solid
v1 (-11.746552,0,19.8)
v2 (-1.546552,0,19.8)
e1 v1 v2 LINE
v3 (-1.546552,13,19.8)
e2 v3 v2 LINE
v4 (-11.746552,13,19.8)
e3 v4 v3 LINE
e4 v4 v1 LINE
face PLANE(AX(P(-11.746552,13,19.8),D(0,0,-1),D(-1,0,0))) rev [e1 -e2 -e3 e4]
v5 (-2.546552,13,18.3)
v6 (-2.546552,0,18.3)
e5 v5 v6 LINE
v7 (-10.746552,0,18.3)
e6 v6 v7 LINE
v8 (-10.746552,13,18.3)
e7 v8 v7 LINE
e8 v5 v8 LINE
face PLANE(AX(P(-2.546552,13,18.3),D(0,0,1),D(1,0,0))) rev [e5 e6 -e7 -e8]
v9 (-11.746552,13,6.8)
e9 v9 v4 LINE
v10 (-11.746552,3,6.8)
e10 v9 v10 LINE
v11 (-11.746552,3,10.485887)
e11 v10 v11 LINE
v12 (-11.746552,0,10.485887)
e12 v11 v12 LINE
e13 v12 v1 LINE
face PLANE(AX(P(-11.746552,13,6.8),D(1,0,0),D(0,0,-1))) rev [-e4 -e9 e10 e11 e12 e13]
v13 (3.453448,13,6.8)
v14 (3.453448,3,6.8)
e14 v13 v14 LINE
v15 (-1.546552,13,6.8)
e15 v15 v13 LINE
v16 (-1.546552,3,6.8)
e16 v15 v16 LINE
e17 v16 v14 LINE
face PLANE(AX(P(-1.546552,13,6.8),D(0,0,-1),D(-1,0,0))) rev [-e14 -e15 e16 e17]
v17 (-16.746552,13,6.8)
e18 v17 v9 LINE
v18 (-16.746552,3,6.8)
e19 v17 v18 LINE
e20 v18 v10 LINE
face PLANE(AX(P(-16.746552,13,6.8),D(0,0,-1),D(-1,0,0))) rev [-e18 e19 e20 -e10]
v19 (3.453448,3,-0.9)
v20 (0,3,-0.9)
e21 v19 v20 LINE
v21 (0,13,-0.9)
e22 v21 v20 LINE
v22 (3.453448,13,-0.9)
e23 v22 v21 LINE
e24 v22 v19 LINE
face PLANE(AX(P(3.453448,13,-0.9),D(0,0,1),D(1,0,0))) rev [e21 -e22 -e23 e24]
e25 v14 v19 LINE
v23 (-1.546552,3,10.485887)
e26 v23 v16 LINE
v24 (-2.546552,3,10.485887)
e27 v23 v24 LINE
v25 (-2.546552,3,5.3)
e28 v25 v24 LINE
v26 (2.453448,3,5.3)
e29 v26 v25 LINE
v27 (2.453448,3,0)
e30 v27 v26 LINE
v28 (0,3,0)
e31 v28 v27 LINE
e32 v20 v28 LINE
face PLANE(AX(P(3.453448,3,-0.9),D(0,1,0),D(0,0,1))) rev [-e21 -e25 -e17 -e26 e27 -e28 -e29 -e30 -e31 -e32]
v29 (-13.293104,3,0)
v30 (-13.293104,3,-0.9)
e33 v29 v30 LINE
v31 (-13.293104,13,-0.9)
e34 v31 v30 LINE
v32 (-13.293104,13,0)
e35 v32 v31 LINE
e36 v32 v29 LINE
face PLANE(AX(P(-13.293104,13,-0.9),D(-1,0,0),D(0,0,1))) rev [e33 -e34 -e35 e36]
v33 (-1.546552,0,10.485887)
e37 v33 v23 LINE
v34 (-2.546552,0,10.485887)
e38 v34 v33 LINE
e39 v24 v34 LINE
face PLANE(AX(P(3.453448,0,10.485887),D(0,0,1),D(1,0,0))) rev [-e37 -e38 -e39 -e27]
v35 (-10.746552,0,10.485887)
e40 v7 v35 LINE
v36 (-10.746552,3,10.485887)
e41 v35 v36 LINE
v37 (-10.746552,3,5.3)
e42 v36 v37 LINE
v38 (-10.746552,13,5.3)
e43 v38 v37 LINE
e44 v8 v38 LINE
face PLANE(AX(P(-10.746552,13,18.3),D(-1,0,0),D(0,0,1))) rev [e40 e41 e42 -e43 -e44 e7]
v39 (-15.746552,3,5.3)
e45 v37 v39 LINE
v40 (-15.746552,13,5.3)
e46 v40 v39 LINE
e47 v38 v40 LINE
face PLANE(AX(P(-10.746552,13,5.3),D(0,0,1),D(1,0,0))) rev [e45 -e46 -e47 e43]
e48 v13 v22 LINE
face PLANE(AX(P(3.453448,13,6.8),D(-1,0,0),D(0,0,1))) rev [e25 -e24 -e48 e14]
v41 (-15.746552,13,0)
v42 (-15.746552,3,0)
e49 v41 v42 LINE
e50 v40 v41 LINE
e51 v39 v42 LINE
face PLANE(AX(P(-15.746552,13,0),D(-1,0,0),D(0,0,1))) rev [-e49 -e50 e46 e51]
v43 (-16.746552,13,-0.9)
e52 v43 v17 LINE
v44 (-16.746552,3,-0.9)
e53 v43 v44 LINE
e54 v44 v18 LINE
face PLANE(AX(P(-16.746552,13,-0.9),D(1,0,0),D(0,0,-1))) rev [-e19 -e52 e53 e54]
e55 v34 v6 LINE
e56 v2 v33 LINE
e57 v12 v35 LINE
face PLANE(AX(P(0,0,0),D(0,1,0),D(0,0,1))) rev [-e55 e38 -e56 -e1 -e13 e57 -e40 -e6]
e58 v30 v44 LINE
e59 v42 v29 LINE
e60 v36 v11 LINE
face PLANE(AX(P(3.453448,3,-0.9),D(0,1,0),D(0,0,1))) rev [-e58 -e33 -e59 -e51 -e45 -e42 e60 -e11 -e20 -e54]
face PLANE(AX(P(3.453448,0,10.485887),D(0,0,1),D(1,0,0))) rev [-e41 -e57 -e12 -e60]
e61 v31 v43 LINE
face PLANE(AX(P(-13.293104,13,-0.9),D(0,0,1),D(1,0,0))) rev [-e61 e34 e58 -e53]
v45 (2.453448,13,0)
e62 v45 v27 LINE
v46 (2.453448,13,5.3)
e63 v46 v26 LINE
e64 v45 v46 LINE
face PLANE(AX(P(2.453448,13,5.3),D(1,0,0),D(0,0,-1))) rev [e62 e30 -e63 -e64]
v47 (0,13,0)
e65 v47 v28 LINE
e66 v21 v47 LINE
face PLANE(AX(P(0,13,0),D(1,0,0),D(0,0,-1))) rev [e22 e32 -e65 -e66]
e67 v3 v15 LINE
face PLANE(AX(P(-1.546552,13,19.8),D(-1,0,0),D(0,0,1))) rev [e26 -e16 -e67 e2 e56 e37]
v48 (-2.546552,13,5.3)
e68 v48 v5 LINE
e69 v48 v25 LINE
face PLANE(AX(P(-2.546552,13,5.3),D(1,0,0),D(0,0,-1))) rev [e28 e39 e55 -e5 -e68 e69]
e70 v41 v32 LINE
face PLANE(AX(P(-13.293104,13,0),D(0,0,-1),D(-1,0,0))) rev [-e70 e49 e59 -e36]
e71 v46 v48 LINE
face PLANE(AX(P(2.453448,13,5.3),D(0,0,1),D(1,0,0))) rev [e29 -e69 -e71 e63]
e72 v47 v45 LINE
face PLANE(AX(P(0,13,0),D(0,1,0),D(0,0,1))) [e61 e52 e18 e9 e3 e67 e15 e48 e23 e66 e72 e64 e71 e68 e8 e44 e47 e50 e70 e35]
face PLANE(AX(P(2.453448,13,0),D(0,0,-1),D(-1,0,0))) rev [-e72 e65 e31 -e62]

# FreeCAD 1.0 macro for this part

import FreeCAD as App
import Part
import Sketcher
from FreeCAD import Vector


def add_polygon(sketch, points):
    """Adds a closed chain of lines whose ends are joined by coincident constraints."""
    first, n = sketch.GeometryCount, len(points)
    for a, b in zip(points, points[1:] + points[:1]):
        sketch.addGeometry(Part.LineSegment(App.Vector(*a, 0), App.Vector(*b, 0)), False)
    for i in range(n):
        sketch.addConstraint(Sketcher.Constraint("Coincident", first + i, 2, first + (i + 1) % n, 1))

doc = App.newDocument("Part")
params = doc.addObject("Spreadsheet::Sheet", "Params")
for row, (alias, value) in enumerate([
    ("sketch1_width", "5 mm"),
    ("sketch1_height", "13 mm"),
    ("sketch1_width2", "8.2 mm"),
    ("sketch1_width3", "10.2 mm"),
    ("sketch1_height2", "5.3 mm"),
    ("pad1_length", "13 mm"),
    ("sketch2_width", "3 mm"),
], start=1):
    params.set(f"A{row}", alias)
    params.set(f"B{row}", "=" + value)
    params.setAlias(f"B{row}", alias)

body = doc.addObject("PartDesign::Body", "Body")

sketch1 = body.newObject("Sketcher::SketchObject", "Sketch")
sketch1.AttachmentSupport = (doc.getObject("XZ_Plane"), [""])
sketch1.MapMode = "FlatFace"
add_polygon(sketch1, [(2.453448, 5.3), (-2.546552, 5.3), (-2.546552, 18.3), (-10.746552, 18.3), (-10.746552, 5.3), (-15.746552, 5.3), (-15.746552, 0), (-13.293104, 0), (-13.293104, -0.9), (-16.746552, -0.9), (-16.746552, 6.8), (-11.746552, 6.8), (-11.746552, 19.8), (-1.546552, 19.8), (-1.546552, 6.8), (3.453448, 6.8), (3.453448, -0.9), (0, -0.9), (0, 0), (2.453448, 0)])
sketch1.addConstraint(Sketcher.Constraint("Horizontal", 0))
sketch1.addConstraint(Sketcher.Constraint("Vertical", 1))
sketch1.addConstraint(Sketcher.Constraint("Horizontal", 2))
sketch1.addConstraint(Sketcher.Constraint("Vertical", 3))
sketch1.addConstraint(Sketcher.Constraint("Horizontal", 4))
sketch1.addConstraint(Sketcher.Constraint("Vertical", 5))
sketch1.addConstraint(Sketcher.Constraint("Horizontal", 6))
sketch1.addConstraint(Sketcher.Constraint("Vertical", 7))
sketch1.addConstraint(Sketcher.Constraint("Horizontal", 8))
sketch1.addConstraint(Sketcher.Constraint("Vertical", 9))
sketch1.addConstraint(Sketcher.Constraint("Horizontal", 10))
sketch1.addConstraint(Sketcher.Constraint("Vertical", 11))
sketch1.addConstraint(Sketcher.Constraint("Horizontal", 12))
sketch1.addConstraint(Sketcher.Constraint("Vertical", 13))
sketch1.addConstraint(Sketcher.Constraint("Horizontal", 14))
sketch1.addConstraint(Sketcher.Constraint("Vertical", 15))
sketch1.addConstraint(Sketcher.Constraint("Horizontal", 16))
sketch1.addConstraint(Sketcher.Constraint("Vertical", 17))
sketch1.addConstraint(Sketcher.Constraint("Horizontal", 18))
sketch1.addConstraint(Sketcher.Constraint("Vertical", 19))
sketch1.addConstraint(Sketcher.Constraint("Coincident", 17, 2, -1, 1))
sketch1.addConstraint(Sketcher.Constraint("PointOnObject", 5, 2, -1))
sketch1.addConstraint(Sketcher.Constraint("Horizontal", 0, 2, 3, 2))
sketch1.addConstraint(Sketcher.Constraint("Horizontal", 10, 2, 13, 2))
sketch1.addConstraint(Sketcher.Constraint("Horizontal", 8, 2, 15, 2))
sketch1.addConstraint(Sketcher.Constraint("Equal", 0, 4))
sketch1.addConstraint(Sketcher.Constraint("Equal", 4, 10))
sketch1.addConstraint(Sketcher.Constraint("Equal", 10, 14))
sketch1.addConstraint(Sketcher.Constraint("Equal", 8, 16))
sketch1.addConstraint(Sketcher.Constraint("Equal", 6, 18))
sketch1.addConstraint(Sketcher.Constraint("Equal", 3, 11))
sketch1.addConstraint(Sketcher.Constraint("DistanceX", 0, 2, 0, 1, 5.0))
sketch1.addConstraint(Sketcher.Constraint("DistanceY", 1, 1, 1, 2, 13.0))
sketch1.addConstraint(Sketcher.Constraint("DistanceX", 2, 2, 2, 1, 8.2))
sketch1.addConstraint(Sketcher.Constraint("DistanceX", 12, 1, 12, 2, 10.2))
sketch1.addConstraint(Sketcher.Constraint("DistanceY", 5, 2, 5, 1, 5.3))
sketch1.addConstraint(Sketcher.Constraint("DistanceY", 7, 2, 7, 1, 0.9))
sketch1.addConstraint(Sketcher.Constraint("DistanceY", 9, 1, 9, 2, 7.7))
sketch1.addConstraint(Sketcher.Constraint("DistanceX", 6, 1, 6, 2, 2.453448))
sketch1.setExpression("Constraints[51]", "Params.sketch1_width")
sketch1.setExpression("Constraints[52]", "Params.sketch1_height")
sketch1.setExpression("Constraints[53]", "Params.sketch1_width2")
sketch1.setExpression("Constraints[54]", "Params.sketch1_width3")
sketch1.setExpression("Constraints[55]", "Params.sketch1_height2")
pad1 = body.newObject("PartDesign::Pad", "Pad")
pad1.Profile = sketch1
pad1.setExpression("Length", "Params.pad1_length")
pad1.Reversed = True

sketch2 = body.newObject("Sketcher::SketchObject", "Sketch001")
sketch2.AttachmentSupport = (doc.getObject("YZ_Plane"), [""])
sketch2.MapMode = "FlatFace"
sketch2.AttachmentOffset = App.Placement(Vector(0, 0, -16.746552), App.Rotation())
add_polygon(sketch2, [(3, -0.9), (0, -0.9), (0, 10.485887), (3, 10.485887)])
sketch2.addConstraint(Sketcher.Constraint("Horizontal", 0))
sketch2.addConstraint(Sketcher.Constraint("Vertical", 1))
sketch2.addConstraint(Sketcher.Constraint("Horizontal", 2))
sketch2.addConstraint(Sketcher.Constraint("Vertical", 3))
sketch2.addConstraint(Sketcher.Constraint("PointOnObject", 0, 2, -2))
sketch2.addConstraint(Sketcher.Constraint("DistanceX", 0, 2, 0, 1, 3.0))
sketch2.addConstraint(Sketcher.Constraint("DistanceY", 0, 2, -1, 1, 0.9))
sketch2.addConstraint(Sketcher.Constraint("DistanceY", 1, 1, 1, 2, 11.385887))
sketch2.setExpression("Constraints[9]", "Params.sketch2_width")
pocket1 = body.newObject("PartDesign::Pocket", "Pocket")
pocket1.Profile = sketch2
pocket1.Type = "ThroughAll"
pocket1.Midplane = True

doc.recompute()
